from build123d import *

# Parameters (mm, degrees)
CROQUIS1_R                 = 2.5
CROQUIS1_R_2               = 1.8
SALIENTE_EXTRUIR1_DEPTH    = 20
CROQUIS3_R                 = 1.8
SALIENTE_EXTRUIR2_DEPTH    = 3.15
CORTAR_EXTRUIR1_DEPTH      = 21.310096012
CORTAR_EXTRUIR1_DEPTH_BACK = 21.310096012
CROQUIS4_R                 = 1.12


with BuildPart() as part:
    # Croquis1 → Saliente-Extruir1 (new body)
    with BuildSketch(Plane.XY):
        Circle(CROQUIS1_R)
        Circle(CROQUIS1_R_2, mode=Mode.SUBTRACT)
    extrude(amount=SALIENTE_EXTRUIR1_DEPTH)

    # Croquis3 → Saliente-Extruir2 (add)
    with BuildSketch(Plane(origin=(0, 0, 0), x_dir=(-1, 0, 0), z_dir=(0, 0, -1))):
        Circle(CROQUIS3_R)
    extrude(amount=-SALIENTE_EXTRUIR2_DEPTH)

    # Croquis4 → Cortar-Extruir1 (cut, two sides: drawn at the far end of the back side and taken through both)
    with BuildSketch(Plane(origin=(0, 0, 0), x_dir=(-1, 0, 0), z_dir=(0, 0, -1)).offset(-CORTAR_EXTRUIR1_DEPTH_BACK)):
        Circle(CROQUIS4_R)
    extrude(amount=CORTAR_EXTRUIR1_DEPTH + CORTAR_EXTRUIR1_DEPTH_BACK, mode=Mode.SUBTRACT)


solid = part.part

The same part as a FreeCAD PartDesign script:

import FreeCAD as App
import Part
import Sketcher

doc = App.newDocument("Part")
body = doc.addObject("PartDesign::Body", "Body")

# Sketch on XY plane
sketch1 = doc.addObject("Sketcher::SketchObject", "Sketch")
body.addObject(sketch1)
sketch1.AttachmentSupport = (doc.XY_Plane, [""])
sketch1.MapMode = "FlatFace"
sketch1.addGeometry([
    Part.Circle(App.Vector(0, 0, 0), App.Vector(0, 0, 1), 2.5),
    Part.Circle(App.Vector(0, 0, 0), App.Vector(0, 0, 1), 1.8),
], False)
sketch1.addConstraint([
    Sketcher.Constraint("Coincident", 0, 3, -1, 1),
    Sketcher.Constraint("Coincident", 1, 3, -1, 1),
    Sketcher.Constraint("Diameter", 0, 5.0),
    Sketcher.Constraint("Diameter", 1, 3.6),
])
pad1 = doc.addObject("PartDesign::Pad", "Pad")
body.addObject(pad1)
pad1.Profile = sketch1
pad1.Length = 20

# Sketch on XY plane
sketch2 = doc.addObject("Sketcher::SketchObject", "Sketch001")
body.addObject(sketch2)
sketch2.AttachmentSupport = (doc.XY_Plane, [""])
sketch2.MapMode = "FlatFace"
sketch2.addGeometry(Part.Circle(App.Vector(0, 0, 0), App.Vector(0, 0, 1), 1.8), False)
sketch2.addConstraint([
    Sketcher.Constraint("Coincident", 0, 3, -1, 1),
    Sketcher.Constraint("Diameter", 0, 3.6),
])
pad2 = doc.addObject("PartDesign::Pad", "Pad001")
body.addObject(pad2)
pad2.Profile = sketch2
pad2.Length = 3.15

# Sketch on XY plane
sketch3 = doc.addObject("Sketcher::SketchObject", "Sketch002")
body.addObject(sketch3)
sketch3.AttachmentSupport = (doc.XY_Plane, [""])
sketch3.MapMode = "FlatFace"
sketch3.addGeometry(Part.Circle(App.Vector(0, 0, 0), App.Vector(0, 0, 1), 1.1), False)
sketch3.addConstraint([
    Sketcher.Constraint("Coincident", 0, 3, -1, 1),
    Sketcher.Constraint("Diameter", 0, 2.24),
])
pocket1 = doc.addObject("PartDesign::Pocket", "Pocket")
body.addObject(pocket1)
pocket1.Profile = sketch3
pocket1.Type = "ThroughAll"
pocket1.Midplane = True

doc.recompute()
